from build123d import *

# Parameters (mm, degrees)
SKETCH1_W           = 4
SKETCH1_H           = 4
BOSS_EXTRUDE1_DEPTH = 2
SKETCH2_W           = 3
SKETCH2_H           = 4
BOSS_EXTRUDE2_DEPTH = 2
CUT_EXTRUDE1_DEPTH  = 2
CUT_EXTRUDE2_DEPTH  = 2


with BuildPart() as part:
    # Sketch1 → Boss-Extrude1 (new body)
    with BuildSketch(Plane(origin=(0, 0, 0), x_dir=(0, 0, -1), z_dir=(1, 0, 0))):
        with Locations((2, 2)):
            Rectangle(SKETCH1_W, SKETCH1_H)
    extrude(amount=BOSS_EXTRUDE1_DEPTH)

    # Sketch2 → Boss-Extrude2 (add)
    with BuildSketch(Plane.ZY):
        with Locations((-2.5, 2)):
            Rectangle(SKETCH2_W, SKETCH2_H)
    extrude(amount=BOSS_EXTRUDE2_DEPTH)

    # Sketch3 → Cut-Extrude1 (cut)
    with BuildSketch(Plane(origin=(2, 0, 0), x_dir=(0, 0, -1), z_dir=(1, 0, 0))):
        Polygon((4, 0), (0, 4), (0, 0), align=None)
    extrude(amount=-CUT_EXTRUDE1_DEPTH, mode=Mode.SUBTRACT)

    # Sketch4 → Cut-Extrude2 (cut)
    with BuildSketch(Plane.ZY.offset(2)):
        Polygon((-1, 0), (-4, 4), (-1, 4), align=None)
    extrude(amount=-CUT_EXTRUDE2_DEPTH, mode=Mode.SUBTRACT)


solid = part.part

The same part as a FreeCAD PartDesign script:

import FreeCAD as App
import Part
import Sketcher

V = App.Vector
Q = App.Units.Quantity


def add_polygon(sketch, points):
    """Adds a closed chain of lines whose ends are joined by coincident constraints."""
    first, n = sketch.GeometryCount, len(points)
    for a, b in zip(points, points[1:] + points[:1]):
        sketch.addGeometry(Part.LineSegment(App.Vector(*a, 0), App.Vector(*b, 0)), False)
    for i in range(n):
        sketch.addConstraint(Sketcher.Constraint("Coincident", first + i, 2, first + (i + 1) % n, 1))

doc = App.newDocument("Part")
body = doc.addObject("PartDesign::Body", "Body")

sketch1 = body.newObject("Sketcher::SketchObject", "Sketch")
sketch1.AttachmentSupport = (doc.getObject("YZ_Plane"), [""])
sketch1.MapMode = "FlatFace"
add_polygon(sketch1, [(4, 0), (0, 0), (0, -4), (4, -4)])
sketch1.addConstraint([
    Sketcher.Constraint("Horizontal", 0),
    Sketcher.Constraint("Vertical", 1),
    Sketcher.Constraint("Horizontal", 2),
    Sketcher.Constraint("Vertical", 3),
    Sketcher.Constraint("Coincident", 0, 2, -1, 1),
    Sketcher.Constraint("Equal", 2, 1),
    Sketcher.Constraint("DistanceX", 0, 2, 0, 1, Q("4 mm")),
])
pad1 = body.newObject("PartDesign::Pad", "Pad")
pad1.Profile = sketch1
pad1.Length = 2

sketch2 = body.newObject("Sketcher::SketchObject", "Sketch001")
sketch2.AttachmentSupport = (doc.getObject("YZ_Plane"), [""])
sketch2.MapMode = "FlatFace"
add_polygon(sketch2, [(4, -4), (0, -4), (0, -1), (4, -1)])
sketch2.addConstraint([
    Sketcher.Constraint("Horizontal", 0),
    Sketcher.Constraint("Vertical", 1),
    Sketcher.Constraint("Horizontal", 2),
    Sketcher.Constraint("Vertical", 3),
    Sketcher.Constraint("PointOnObject", 0, 2, -2),
    Sketcher.Constraint("DistanceX", 0, 2, 0, 1, Q("4 mm")),
    Sketcher.Constraint("DistanceY", 1, 1, 1, 2, Q("3 mm")),
    Sketcher.Constraint("DistanceY", 0, 2, -1, 1, Q("4 mm")),
])
pad2 = body.newObject("PartDesign::Pad", "Pad001")
pad2.Profile = sketch2
pad2.Length = 2
pad2.Reversed = True

sketch3 = body.newObject("Sketcher::SketchObject", "Sketch002")
sketch3.AttachmentSupport = (doc.getObject("YZ_Plane"), [""])
sketch3.MapMode = "FlatFace"
sketch3.AttachmentOffset = App.Placement(V(0, 0, 2), App.Rotation())
add_polygon(sketch3, [(0, -4), (4, 0), (0, 0)])
sketch3.addConstraint([
    Sketcher.Constraint("Horizontal", 1),
    Sketcher.Constraint("Vertical", 2),
    Sketcher.Constraint("Coincident", 1, 2, -1, 1),
    Sketcher.Constraint("Equal", 1, 2),
    Sketcher.Constraint("DistanceX", 1, 2, 1, 1, Q("4 mm")),
])
pocket1 = body.newObject("PartDesign::Pocket", "Pocket")
pocket1.Profile = sketch3
pocket1.Length = 2

sketch4 = body.newObject("Sketcher::SketchObject", "Sketch003")
sketch4.AttachmentSupport = (doc.getObject("YZ_Plane"), [""])
sketch4.MapMode = "FlatFace"
sketch4.AttachmentOffset = App.Placement(V(0, 0, -2), App.Rotation())
add_polygon(sketch4, [(4, -4), (0, -1), (4, -1)])
sketch4.addConstraint([
    Sketcher.Constraint("Horizontal", 1),
    Sketcher.Constraint("Vertical", 2),
    Sketcher.Constraint("PointOnObject", 0, 2, -2),
    Sketcher.Constraint("DistanceX", 1, 1, 1, 2, Q("4 mm")),
    Sketcher.Constraint("DistanceY", 2, 2, 2, 1, Q("3 mm")),
    Sketcher.Constraint("DistanceY", 0, 2, -1, 1, Q("1 mm")),
])
pocket2 = body.newObject("PartDesign::Pocket", "Pocket001")
pocket2.Profile = sketch4
pocket2.Length = 2
pocket2.Reversed = True

doc.recompute()
